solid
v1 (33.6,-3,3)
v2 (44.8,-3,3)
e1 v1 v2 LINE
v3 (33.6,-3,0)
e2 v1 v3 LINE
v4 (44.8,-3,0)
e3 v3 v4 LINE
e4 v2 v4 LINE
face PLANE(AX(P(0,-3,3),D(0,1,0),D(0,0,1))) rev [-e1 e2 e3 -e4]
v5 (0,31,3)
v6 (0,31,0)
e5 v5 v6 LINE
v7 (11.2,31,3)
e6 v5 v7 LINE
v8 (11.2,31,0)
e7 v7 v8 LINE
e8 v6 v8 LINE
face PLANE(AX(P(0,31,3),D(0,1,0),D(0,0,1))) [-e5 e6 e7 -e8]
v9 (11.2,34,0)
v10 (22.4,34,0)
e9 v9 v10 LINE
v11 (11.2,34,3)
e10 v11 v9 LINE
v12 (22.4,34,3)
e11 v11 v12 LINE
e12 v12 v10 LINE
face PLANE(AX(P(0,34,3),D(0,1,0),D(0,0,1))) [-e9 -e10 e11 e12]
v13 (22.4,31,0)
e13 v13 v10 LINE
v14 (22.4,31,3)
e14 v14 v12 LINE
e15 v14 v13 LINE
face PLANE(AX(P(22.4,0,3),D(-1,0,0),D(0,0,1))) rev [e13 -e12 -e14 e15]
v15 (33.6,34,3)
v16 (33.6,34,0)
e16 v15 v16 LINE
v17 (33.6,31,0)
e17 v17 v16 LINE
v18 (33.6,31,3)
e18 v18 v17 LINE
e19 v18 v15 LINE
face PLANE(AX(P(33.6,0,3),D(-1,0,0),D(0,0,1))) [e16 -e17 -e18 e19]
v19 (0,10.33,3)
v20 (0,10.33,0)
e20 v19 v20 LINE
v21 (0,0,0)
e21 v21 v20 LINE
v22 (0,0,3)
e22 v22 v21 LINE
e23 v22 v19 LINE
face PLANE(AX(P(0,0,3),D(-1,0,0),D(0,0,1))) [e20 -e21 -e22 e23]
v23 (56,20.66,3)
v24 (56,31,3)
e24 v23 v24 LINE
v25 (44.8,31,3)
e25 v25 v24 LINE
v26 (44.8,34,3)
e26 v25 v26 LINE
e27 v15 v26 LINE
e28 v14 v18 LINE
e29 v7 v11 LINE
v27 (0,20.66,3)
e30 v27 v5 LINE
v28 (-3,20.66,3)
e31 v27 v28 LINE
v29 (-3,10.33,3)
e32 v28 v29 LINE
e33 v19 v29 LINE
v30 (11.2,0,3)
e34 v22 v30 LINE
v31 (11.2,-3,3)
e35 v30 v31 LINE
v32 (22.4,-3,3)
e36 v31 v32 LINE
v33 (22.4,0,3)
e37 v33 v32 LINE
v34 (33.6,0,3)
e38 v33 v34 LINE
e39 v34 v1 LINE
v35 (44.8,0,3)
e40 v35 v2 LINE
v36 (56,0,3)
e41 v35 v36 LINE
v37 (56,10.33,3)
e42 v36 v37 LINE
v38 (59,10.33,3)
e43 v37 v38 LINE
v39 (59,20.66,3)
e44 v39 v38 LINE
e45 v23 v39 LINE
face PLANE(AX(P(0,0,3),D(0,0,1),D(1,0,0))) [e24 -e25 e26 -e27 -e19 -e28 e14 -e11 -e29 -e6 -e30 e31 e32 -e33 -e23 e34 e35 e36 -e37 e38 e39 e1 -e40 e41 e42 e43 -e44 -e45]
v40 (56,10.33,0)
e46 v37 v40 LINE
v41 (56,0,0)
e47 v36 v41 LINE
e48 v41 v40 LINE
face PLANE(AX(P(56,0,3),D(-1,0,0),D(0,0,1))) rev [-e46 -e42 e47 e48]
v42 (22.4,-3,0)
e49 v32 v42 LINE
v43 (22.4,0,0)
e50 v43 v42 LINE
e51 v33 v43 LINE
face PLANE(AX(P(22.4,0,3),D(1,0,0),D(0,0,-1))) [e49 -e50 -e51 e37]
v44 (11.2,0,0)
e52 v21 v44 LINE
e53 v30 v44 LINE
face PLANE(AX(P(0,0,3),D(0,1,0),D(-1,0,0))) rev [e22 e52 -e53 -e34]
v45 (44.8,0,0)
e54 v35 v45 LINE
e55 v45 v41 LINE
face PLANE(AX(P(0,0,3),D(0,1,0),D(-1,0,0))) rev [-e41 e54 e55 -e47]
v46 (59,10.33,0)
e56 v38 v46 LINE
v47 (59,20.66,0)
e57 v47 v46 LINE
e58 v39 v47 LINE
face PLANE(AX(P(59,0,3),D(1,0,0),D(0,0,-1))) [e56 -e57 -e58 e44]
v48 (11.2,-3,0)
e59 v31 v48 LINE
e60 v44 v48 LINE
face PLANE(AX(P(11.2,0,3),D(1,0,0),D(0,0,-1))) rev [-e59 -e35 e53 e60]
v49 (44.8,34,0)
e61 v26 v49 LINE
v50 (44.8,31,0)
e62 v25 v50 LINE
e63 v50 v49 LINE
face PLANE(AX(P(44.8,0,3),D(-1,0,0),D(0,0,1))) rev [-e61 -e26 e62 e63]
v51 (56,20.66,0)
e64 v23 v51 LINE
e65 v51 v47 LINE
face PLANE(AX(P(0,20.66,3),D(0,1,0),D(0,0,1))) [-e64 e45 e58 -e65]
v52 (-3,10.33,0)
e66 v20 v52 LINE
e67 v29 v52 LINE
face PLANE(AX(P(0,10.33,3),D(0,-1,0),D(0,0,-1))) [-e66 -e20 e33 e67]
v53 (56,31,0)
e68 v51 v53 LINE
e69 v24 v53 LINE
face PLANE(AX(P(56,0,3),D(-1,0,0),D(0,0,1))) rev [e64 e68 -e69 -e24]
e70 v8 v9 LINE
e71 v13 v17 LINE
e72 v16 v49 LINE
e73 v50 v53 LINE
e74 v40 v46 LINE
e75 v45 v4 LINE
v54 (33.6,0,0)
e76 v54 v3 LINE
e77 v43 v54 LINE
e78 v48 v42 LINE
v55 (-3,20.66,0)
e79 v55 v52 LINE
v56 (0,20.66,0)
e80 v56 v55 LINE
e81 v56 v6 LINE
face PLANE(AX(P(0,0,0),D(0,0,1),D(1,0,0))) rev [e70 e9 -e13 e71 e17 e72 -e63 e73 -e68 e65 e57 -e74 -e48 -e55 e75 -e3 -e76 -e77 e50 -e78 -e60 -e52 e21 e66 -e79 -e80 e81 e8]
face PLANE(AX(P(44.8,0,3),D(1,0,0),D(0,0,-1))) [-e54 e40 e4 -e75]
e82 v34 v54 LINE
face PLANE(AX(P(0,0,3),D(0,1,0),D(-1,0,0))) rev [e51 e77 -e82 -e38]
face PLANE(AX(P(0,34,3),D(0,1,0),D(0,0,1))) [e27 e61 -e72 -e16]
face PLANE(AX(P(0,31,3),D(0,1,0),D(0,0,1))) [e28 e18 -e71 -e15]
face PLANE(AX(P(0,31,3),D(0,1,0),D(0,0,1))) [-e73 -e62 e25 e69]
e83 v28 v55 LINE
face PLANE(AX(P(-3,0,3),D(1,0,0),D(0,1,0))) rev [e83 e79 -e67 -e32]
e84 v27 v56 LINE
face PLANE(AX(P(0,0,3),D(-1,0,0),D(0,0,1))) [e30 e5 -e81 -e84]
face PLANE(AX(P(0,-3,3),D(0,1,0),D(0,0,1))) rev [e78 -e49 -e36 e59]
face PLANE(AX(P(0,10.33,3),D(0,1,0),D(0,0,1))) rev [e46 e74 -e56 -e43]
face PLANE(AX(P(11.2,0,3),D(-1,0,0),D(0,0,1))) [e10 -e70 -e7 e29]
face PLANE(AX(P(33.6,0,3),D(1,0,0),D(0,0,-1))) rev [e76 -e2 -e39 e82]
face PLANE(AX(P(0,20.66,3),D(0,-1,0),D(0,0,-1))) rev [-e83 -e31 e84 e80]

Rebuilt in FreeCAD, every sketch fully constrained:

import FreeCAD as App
import Part
import Sketcher


def add_polygon(sketch, points):
    """Adds a closed chain of lines whose ends are joined by coincident constraints."""
    first, n = sketch.GeometryCount, len(points)
    for a, b in zip(points, points[1:] + points[:1]):
        sketch.addGeometry(Part.LineSegment(App.Vector(*a, 0), App.Vector(*b, 0)), False)
    for i in range(n):
        sketch.addConstraint(Sketcher.Constraint("Coincident", first + i, 2, first + (i + 1) % n, 1))

doc = App.newDocument("Part")
body = doc.addObject("PartDesign::Body", "Body")

# Sketch on XY plane
sketch1 = doc.addObject("Sketcher::SketchObject", "Sketch")
body.addObject(sketch1)
sketch1.AttachmentSupport = (doc.XY_Plane, [""])
sketch1.MapMode = "FlatFace"
add_polygon(sketch1, [(22.4, 0), (33.6, 0), (33.6, -3), (44.8, -3), (44.8, 0), (56, 0), (56, 10.3), (59, 10.3), (59, 20.7), (56, 20.7), (56, 31), (44.8, 31), (44.8, 34), (33.6, 34), (33.6, 31), (22.4, 31), (22.4, 34), (11.2, 34), (11.2, 31), (0, 31), (0, 20.7), (-3, 20.7), (-3, 10.3), (0, 10.3), (0, 0), (11.2, 0), (11.2, -3), (22.4, -3)])  # lines 0-27
sketch1.addConstraint(Sketcher.Constraint("Horizontal", 0))
sketch1.addConstraint(Sketcher.Constraint("Vertical", 1))
sketch1.addConstraint(Sketcher.Constraint("Horizontal", 2))
sketch1.addConstraint(Sketcher.Constraint("Vertical", 3))
sketch1.addConstraint(Sketcher.Constraint("Horizontal", 4))
sketch1.addConstraint(Sketcher.Constraint("Vertical", 5))
sketch1.addConstraint(Sketcher.Constraint("Horizontal", 6))
sketch1.addConstraint(Sketcher.Constraint("Vertical", 7))
sketch1.addConstraint(Sketcher.Constraint("Horizontal", 8))
sketch1.addConstraint(Sketcher.Constraint("Vertical", 9))
sketch1.addConstraint(Sketcher.Constraint("Horizontal", 10))
sketch1.addConstraint(Sketcher.Constraint("Vertical", 11))
sketch1.addConstraint(Sketcher.Constraint("Horizontal", 12))
sketch1.addConstraint(Sketcher.Constraint("Vertical", 13))
sketch1.addConstraint(Sketcher.Constraint("Horizontal", 14))
sketch1.addConstraint(Sketcher.Constraint("Vertical", 15))
sketch1.addConstraint(Sketcher.Constraint("Horizontal", 16))
sketch1.addConstraint(Sketcher.Constraint("Vertical", 17))
sketch1.addConstraint(Sketcher.Constraint("Horizontal", 18))
sketch1.addConstraint(Sketcher.Constraint("Vertical", 19))
sketch1.addConstraint(Sketcher.Constraint("Horizontal", 20))
sketch1.addConstraint(Sketcher.Constraint("Vertical", 21))
sketch1.addConstraint(Sketcher.Constraint("Horizontal", 22))
sketch1.addConstraint(Sketcher.Constraint("Vertical", 23))
sketch1.addConstraint(Sketcher.Constraint("Horizontal", 24))
sketch1.addConstraint(Sketcher.Constraint("Vertical", 25))
sketch1.addConstraint(Sketcher.Constraint("Horizontal", 26))
sketch1.addConstraint(Sketcher.Constraint("Vertical", 27))
sketch1.addConstraint(Sketcher.Constraint("Coincident", 23, 2, -1, 1))
sketch1.addConstraint(Sketcher.Constraint("PointOnObject", 0, 2, -1))
sketch1.addConstraint(Sketcher.Constraint("PointOnObject", 3, 2, -1))
sketch1.addConstraint(Sketcher.Constraint("PointOnObject", 18, 2, -2))
sketch1.addConstraint(Sketcher.Constraint("Horizontal", 10, 2, 13, 2))
sketch1.addConstraint(Sketcher.Constraint("Horizontal", 12, 2, 15, 2))
sketch1.addConstraint(Sketcher.Constraint("Horizontal", 14, 2, 17, 2))
sketch1.addConstraint(Sketcher.Constraint("Horizontal", 8, 2, 19, 2))
sketch1.addConstraint(Sketcher.Constraint("Horizontal", 6, 2, 21, 2))
sketch1.addConstraint(Sketcher.Constraint("Horizontal", 2, 2, 25, 2))
sketch1.addConstraint(Sketcher.Constraint("Vertical", 5, 2, 8, 2))
sketch1.addConstraint(Sketcher.Constraint("Vertical", 3, 2, 10, 2))
sketch1.addConstraint(Sketcher.Constraint("Vertical", 1, 2, 12, 2))
sketch1.addConstraint(Sketcher.Constraint("Vertical", 17, 2, 24, 2))
sketch1.addConstraint(Sketcher.Constraint("Vertical", 15, 2, 26, 2))
sketch1.addConstraint(Sketcher.Constraint("Equal", 0, 2))
sketch1.addConstraint(Sketcher.Constraint("Equal", 2, 4))
sketch1.addConstraint(Sketcher.Constraint("Equal", 14, 16))
sketch1.addConstraint(Sketcher.Constraint("Equal", 16, 18))
sketch1.addConstraint(Sketcher.Constraint("Equal", 8, 20))
sketch1.addConstraint(Sketcher.Constraint("Equal", 22, 1))
sketch1.addConstraint(Sketcher.Constraint("Equal", 5, 7))
sketch1.addConstraint(Sketcher.Constraint("Equal", 3, 11))
sketch1.addConstraint(Sketcher.Constraint("DistanceX", 6, 1, 6, 2, 3.0))
sketch1.addConstraint(Sketcher.Constraint("DistanceX", 0, 1, 0, 2, 11.2))
sketch1.addConstraint(Sketcher.Constraint("DistanceY", -1, 1, 9, 2, 31.0))
sketch1.addConstraint(Sketcher.Constraint("DistanceY", 5, 1, 5, 2, 10.33))
pad1 = doc.addObject("PartDesign::Pad", "Pad")
body.addObject(pad1)
pad1.Profile = sketch1
pad1.Length = 3

doc.recompute()
